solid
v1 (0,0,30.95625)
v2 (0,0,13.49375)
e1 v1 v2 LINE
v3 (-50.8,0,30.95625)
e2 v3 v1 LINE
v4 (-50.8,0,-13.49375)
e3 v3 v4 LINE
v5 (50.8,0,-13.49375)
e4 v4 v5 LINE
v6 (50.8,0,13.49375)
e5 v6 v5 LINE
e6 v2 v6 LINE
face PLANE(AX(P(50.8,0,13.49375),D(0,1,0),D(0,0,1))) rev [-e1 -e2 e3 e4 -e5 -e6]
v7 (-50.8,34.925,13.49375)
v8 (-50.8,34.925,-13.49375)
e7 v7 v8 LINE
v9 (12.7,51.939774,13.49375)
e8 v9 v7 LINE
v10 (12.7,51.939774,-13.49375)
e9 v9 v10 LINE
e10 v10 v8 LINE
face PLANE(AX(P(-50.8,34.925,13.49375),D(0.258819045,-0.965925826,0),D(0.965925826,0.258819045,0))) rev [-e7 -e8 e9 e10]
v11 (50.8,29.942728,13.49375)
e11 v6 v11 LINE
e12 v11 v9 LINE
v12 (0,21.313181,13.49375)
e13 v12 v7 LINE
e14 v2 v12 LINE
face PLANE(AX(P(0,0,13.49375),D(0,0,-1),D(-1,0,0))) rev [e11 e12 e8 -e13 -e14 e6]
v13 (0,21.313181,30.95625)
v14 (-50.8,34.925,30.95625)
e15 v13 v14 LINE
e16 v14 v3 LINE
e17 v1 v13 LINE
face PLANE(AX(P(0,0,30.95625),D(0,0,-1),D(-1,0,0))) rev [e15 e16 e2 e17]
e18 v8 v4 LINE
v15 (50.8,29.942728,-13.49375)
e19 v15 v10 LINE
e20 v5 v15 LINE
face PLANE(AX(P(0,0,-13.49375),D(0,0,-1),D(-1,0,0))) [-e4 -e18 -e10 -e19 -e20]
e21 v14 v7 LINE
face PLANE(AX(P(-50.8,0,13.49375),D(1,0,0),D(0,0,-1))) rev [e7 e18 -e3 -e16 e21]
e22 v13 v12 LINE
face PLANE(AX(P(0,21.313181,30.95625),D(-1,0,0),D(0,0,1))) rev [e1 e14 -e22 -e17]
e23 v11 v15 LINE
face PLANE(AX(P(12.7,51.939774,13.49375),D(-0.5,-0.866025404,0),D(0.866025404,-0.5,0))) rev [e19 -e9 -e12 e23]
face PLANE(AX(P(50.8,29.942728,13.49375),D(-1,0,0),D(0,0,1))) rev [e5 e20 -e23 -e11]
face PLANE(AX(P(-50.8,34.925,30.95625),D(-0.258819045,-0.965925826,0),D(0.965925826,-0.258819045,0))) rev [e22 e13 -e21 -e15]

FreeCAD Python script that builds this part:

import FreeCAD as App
import Part
import Sketcher

V = App.Vector
Q = App.Units.Quantity


def add_polygon(sketch, points):
    """Adds a closed chain of lines whose ends are joined by coincident constraints."""
    first, n = sketch.GeometryCount, len(points)
    for a, b in zip(points, points[1:] + points[:1]):
        sketch.addGeometry(Part.LineSegment(App.Vector(*a, 0), App.Vector(*b, 0)), False)
    for i in range(n):
        sketch.addConstraint(Sketcher.Constraint("Coincident", first + i, 2, first + (i + 1) % n, 1))

doc = App.newDocument("Part")
body = doc.addObject("PartDesign::Body", "Body")

# Sketch on XY plane
sketch1 = body.newObject("Sketcher::SketchObject", "Sketch")
sketch1.AttachmentSupport = (doc.getObject("XY_Plane"), [""])
sketch1.MapMode = "FlatFace"
add_polygon(sketch1, [(-51, 0), (51, 0), (51, 30), (13, 52), (-51, 35)])  # lines 0-4
sketch1.addConstraint([
    Sketcher.Constraint("Horizontal", 0),
    Sketcher.Constraint("Vertical", 1),
    Sketcher.Constraint("Vertical", 4),
    Sketcher.Constraint("Symmetric", 0, 2, 4, 2, -1, 1),
    Sketcher.Constraint("DistanceX", 0, 1, 0, 2, Q("4 in")),
    Sketcher.Constraint("Angle", 2, Q("150 deg")),
    Sketcher.Constraint("Angle", 3, Q("-165 deg")),
    Sketcher.Constraint("DistanceX", -1, 1, 2, 2, Q("0.5 in")),
    Sketcher.Constraint("DistanceY", 4, 2, 4, 1, Q("1.375 in")),
])
pad1 = body.newObject("PartDesign::Pad", "Pad")
pad1.Profile = sketch1
pad1.Length = Q("1.0625 in")
pad1.Midplane = True

# Sketch on XY plane
sketch2 = body.newObject("Sketcher::SketchObject", "Sketch001")
sketch2.AttachmentSupport = (doc.getObject("XY_Plane"), [""])
sketch2.MapMode = "FlatFace"
sketch2.AttachmentOffset = App.Placement(V(0, 0, 0.53125 * 25.4), App.Rotation())
add_polygon(sketch2, [(-51, 35), (-51, 0), (0, 0), (0, 21)])  # lines 0-3
sketch2.addConstraint([
    Sketcher.Constraint("Vertical", 0),
    Sketcher.Constraint("Horizontal", 1),
    Sketcher.Constraint("Vertical", 2),
    Sketcher.Constraint("Coincident", 1, 2, -1, 1),
    Sketcher.Constraint("DistanceX", 1, 1, 1, 2, Q("2 in")),
    Sketcher.Constraint("Angle", 3, Q("165 deg")),
    Sketcher.Constraint("DistanceY", 0, 2, 0, 1, Q("1.375 in")),
])
pad2 = body.newObject("PartDesign::Pad", "Pad001")
pad2.Profile = sketch2
pad2.Length = Q("0.6875 in")

doc.recompute()
